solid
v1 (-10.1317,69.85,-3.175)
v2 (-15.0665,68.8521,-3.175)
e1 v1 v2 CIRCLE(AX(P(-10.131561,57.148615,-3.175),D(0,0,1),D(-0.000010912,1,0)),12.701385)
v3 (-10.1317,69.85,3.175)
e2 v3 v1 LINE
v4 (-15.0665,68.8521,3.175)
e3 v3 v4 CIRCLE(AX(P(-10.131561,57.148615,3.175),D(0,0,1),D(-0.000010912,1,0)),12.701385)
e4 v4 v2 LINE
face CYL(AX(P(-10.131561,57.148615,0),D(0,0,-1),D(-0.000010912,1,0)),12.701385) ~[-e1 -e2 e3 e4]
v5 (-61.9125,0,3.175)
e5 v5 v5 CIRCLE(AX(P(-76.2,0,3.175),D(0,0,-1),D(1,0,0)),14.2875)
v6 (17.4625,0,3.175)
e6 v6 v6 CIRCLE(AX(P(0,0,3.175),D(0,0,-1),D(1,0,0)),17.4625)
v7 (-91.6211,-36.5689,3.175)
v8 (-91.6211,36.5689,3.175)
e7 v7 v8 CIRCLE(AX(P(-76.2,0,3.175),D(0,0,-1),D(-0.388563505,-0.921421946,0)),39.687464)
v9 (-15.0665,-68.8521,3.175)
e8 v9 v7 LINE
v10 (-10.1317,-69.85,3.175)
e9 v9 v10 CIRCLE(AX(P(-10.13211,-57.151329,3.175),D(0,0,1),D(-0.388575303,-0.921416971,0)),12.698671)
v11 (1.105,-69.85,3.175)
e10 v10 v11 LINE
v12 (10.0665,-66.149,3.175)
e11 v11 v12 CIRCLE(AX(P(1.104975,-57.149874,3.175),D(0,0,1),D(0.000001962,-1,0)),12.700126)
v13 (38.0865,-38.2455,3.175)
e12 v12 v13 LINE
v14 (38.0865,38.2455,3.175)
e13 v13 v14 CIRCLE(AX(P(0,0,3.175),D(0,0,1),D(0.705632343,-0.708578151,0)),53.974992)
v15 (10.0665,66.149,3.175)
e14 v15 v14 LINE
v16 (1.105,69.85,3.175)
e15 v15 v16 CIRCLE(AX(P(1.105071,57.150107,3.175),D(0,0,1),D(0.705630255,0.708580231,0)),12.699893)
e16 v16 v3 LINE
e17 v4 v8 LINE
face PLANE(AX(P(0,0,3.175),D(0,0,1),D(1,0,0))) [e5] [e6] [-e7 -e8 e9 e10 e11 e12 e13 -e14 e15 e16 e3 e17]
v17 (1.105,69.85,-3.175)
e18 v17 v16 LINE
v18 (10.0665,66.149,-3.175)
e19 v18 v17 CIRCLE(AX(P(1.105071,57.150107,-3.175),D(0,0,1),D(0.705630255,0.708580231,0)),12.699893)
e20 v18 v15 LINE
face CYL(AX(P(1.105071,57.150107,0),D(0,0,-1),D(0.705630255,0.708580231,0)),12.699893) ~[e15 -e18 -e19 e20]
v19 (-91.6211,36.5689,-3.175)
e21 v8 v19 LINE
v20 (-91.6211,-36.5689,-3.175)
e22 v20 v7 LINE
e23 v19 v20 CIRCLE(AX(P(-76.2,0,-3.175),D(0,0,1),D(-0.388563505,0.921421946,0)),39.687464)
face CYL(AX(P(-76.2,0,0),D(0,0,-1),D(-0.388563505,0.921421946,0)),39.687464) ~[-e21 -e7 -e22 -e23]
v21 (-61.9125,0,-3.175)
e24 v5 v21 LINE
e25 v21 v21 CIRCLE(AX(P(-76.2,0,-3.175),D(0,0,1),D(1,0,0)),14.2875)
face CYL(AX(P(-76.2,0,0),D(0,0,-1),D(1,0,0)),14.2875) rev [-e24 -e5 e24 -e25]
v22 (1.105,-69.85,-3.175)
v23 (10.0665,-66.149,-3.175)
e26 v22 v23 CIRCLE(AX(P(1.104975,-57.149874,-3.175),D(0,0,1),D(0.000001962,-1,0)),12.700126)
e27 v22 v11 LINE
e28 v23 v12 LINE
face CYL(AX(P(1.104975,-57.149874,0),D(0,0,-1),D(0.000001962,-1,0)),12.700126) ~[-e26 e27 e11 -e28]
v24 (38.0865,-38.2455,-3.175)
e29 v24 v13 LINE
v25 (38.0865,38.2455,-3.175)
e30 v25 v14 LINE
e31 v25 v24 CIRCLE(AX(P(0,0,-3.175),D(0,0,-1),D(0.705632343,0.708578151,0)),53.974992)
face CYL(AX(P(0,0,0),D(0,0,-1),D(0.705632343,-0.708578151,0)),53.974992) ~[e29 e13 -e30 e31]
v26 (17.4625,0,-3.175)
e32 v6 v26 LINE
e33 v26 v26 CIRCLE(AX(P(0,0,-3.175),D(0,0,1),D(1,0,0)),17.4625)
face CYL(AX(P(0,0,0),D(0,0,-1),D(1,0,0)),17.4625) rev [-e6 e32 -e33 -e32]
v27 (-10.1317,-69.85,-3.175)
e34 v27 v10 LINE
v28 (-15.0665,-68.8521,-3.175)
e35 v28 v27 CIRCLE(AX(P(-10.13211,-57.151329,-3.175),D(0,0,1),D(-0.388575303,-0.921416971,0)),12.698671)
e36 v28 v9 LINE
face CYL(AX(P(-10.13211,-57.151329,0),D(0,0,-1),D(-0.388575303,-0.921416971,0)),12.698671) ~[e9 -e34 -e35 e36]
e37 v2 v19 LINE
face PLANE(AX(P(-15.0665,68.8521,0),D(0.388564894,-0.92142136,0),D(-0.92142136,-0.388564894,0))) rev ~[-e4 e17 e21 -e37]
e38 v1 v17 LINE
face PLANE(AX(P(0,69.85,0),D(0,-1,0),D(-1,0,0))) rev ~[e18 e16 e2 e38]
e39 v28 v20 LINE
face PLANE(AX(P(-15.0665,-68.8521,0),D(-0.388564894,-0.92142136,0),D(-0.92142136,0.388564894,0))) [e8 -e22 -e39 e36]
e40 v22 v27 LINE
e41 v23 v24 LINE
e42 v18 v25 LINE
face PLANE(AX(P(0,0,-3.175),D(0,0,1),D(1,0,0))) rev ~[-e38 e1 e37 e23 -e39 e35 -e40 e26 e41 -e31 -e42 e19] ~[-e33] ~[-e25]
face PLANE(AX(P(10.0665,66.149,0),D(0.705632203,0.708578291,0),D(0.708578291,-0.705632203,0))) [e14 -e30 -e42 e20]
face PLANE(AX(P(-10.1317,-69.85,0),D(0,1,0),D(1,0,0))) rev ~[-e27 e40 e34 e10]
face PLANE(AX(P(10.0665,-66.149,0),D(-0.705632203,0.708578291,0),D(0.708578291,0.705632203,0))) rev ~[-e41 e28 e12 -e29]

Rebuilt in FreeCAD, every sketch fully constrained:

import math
import FreeCAD as App
import Part
import Sketcher

V = App.Vector
Q = App.Units.Quantity

doc = App.newDocument("Part")
params = doc.addObject("Spreadsheet::Sheet", "Params")
for row, (alias, value) in enumerate([
    ("sketch1_radius", "0.5 in"),
    ("sketch1_diameter", "1.375 in"),
    ("sketch1_diameter2", "1.125 in"),
    ("sketch1_radius2", "1.5625 in"),
    ("sketch1_radius3", "2.125 in"),
    ("pad1_length", "0.25 in"),
], start=1):
    params.set(f"A{row}", alias)
    params.set(f"B{row}", "=" + value)
    params.setAlias(f"B{row}", alias)

body = doc.addObject("PartDesign::Body", "Body")

sketch1 = body.newObject("Sketcher::SketchObject", "Sketch")
sketch1.AttachmentSupport = (doc.getObject("XY_Plane"), [""])
sketch1.MapMode = "FlatFace"
sketch1.addGeometry([
    Part.ArcOfCircle(Part.Circle(V(-76.2, 0, 0), V(0, 0, 1), 39.687464), math.radians(112.865146), math.radians(247.134854)),
    Part.LineSegment(V(-91.6211, -36.5689, 0), V(-15.0665, -68.8521, 0)),
    Part.ArcOfCircle(Part.Circle(V(-10.13211, -57.151329, 0), V(0, 0, 1), 12.698671), math.radians(-112.86588), math.radians(-89.998149)),
    Part.LineSegment(V(-10.1317, -69.85, 0), V(1.105, -69.85, 0)),
    Part.ArcOfCircle(Part.Circle(V(1.105, -57.15, 0), V(0, 0, 1), 12.7), math.radians(-90), math.radians(-45.119629)),
    Part.LineSegment(V(10.0665, -66.149, 0), V(38.0865, -38.2455, 0)),
    Part.ArcOfCircle(Part.Circle(V(0, 0, 0), V(0, 0, 1), 53.974992), math.radians(-45.119347), math.radians(45.119347)),
    Part.LineSegment(V(38.0865, 38.2455, 0), V(10.0665, 66.149, 0)),
    Part.ArcOfCircle(Part.Circle(V(1.105, 57.15, 0), V(0, 0, 1), 12.700019), math.radians(45.119629), math.radians(90)),
    Part.LineSegment(V(1.105, 69.85, 0), V(-10.1317, 69.85, 0)),
    Part.ArcOfCircle(Part.Circle(V(-10.131561, 57.148615, 0), V(0, 0, 1), 12.701385), math.radians(90.000625), math.radians(112.863404)),
    Part.LineSegment(V(-15.0665, 68.8521, 0), V(-91.6211, 36.5689, 0)),
    Part.Circle(V(0, 0, 0), V(0, 0, 1), 17.4625),
    Part.Circle(V(-76.2, 0, 0), V(0, 0, 1), 14.2875),
], False)
sketch1.addConstraint([
    Sketcher.Constraint("Tangent", 0, 2, 1, 1),
    Sketcher.Constraint("Tangent", 1, 2, 2, 1),
    Sketcher.Constraint("Tangent", 2, 2, 3, 1),
    Sketcher.Constraint("Tangent", 3, 2, 4, 1),
    Sketcher.Constraint("Tangent", 4, 2, 5, 1),
    Sketcher.Constraint("Tangent", 5, 2, 6, 1),
    Sketcher.Constraint("Tangent", 6, 2, 7, 1),
    Sketcher.Constraint("Tangent", 7, 2, 8, 1),
    Sketcher.Constraint("Tangent", 8, 2, 9, 1),
    Sketcher.Constraint("Tangent", 9, 2, 10, 1),
    Sketcher.Constraint("Tangent", 10, 2, 11, 1),
    Sketcher.Constraint("Tangent", 11, 2, 0, 1),
    Sketcher.Constraint("Horizontal", 3),
    Sketcher.Constraint("Horizontal", 9),
    Sketcher.Constraint("Coincident", 6, 3, -1, 1),
    Sketcher.Constraint("Coincident", 12, 3, -1, 1),
    Sketcher.Constraint("Coincident", 13, 3, 0, 3),
    Sketcher.Constraint("Equal", 4, 8),
    Sketcher.Constraint("Symmetric", 4, 3, 8, 3, -1),
    Sketcher.Constraint("Symmetric", 1, 2, 10, 2, -1),
    Sketcher.Constraint("PointOnObject", 0, 3, -1),
    Sketcher.Constraint("Radius", 4, Q("0.5 in")),
    Sketcher.Constraint("Diameter", 12, Q("1.375 in")),
    Sketcher.Constraint("Diameter", 13, Q("1.125 in")),
    Sketcher.Constraint("DistanceX", 0, 3, -1, 1, Q("3 in")),
    Sketcher.Constraint("DistanceY", 2, 2, -1, 1, Q("2.75 in")),
    Sketcher.Constraint("Radius", 0, Q("1.5625 in")),
    Sketcher.Constraint("Radius", 6, Q("2.125 in")),
    Sketcher.Constraint("DistanceY", 2, 3, 10, 3, Q("4.5 in")),
    Sketcher.Constraint("Angle", 5, Q("44.8806 deg")),
    Sketcher.Constraint("Distance", 1, Q("3.271 in")),
])
sketch1.setExpression("Constraints[21]", "Params.sketch1_radius")
sketch1.setExpression("Constraints[22]", "Params.sketch1_diameter")
sketch1.setExpression("Constraints[23]", "Params.sketch1_diameter2")
sketch1.setExpression("Constraints[26]", "Params.sketch1_radius2")
sketch1.setExpression("Constraints[27]", "Params.sketch1_radius3")
pad1 = body.newObject("PartDesign::Pad", "Pad")
pad1.Profile = sketch1
pad1.setExpression("Length", "Params.pad1_length")
pad1.Midplane = True

doc.recompute()
